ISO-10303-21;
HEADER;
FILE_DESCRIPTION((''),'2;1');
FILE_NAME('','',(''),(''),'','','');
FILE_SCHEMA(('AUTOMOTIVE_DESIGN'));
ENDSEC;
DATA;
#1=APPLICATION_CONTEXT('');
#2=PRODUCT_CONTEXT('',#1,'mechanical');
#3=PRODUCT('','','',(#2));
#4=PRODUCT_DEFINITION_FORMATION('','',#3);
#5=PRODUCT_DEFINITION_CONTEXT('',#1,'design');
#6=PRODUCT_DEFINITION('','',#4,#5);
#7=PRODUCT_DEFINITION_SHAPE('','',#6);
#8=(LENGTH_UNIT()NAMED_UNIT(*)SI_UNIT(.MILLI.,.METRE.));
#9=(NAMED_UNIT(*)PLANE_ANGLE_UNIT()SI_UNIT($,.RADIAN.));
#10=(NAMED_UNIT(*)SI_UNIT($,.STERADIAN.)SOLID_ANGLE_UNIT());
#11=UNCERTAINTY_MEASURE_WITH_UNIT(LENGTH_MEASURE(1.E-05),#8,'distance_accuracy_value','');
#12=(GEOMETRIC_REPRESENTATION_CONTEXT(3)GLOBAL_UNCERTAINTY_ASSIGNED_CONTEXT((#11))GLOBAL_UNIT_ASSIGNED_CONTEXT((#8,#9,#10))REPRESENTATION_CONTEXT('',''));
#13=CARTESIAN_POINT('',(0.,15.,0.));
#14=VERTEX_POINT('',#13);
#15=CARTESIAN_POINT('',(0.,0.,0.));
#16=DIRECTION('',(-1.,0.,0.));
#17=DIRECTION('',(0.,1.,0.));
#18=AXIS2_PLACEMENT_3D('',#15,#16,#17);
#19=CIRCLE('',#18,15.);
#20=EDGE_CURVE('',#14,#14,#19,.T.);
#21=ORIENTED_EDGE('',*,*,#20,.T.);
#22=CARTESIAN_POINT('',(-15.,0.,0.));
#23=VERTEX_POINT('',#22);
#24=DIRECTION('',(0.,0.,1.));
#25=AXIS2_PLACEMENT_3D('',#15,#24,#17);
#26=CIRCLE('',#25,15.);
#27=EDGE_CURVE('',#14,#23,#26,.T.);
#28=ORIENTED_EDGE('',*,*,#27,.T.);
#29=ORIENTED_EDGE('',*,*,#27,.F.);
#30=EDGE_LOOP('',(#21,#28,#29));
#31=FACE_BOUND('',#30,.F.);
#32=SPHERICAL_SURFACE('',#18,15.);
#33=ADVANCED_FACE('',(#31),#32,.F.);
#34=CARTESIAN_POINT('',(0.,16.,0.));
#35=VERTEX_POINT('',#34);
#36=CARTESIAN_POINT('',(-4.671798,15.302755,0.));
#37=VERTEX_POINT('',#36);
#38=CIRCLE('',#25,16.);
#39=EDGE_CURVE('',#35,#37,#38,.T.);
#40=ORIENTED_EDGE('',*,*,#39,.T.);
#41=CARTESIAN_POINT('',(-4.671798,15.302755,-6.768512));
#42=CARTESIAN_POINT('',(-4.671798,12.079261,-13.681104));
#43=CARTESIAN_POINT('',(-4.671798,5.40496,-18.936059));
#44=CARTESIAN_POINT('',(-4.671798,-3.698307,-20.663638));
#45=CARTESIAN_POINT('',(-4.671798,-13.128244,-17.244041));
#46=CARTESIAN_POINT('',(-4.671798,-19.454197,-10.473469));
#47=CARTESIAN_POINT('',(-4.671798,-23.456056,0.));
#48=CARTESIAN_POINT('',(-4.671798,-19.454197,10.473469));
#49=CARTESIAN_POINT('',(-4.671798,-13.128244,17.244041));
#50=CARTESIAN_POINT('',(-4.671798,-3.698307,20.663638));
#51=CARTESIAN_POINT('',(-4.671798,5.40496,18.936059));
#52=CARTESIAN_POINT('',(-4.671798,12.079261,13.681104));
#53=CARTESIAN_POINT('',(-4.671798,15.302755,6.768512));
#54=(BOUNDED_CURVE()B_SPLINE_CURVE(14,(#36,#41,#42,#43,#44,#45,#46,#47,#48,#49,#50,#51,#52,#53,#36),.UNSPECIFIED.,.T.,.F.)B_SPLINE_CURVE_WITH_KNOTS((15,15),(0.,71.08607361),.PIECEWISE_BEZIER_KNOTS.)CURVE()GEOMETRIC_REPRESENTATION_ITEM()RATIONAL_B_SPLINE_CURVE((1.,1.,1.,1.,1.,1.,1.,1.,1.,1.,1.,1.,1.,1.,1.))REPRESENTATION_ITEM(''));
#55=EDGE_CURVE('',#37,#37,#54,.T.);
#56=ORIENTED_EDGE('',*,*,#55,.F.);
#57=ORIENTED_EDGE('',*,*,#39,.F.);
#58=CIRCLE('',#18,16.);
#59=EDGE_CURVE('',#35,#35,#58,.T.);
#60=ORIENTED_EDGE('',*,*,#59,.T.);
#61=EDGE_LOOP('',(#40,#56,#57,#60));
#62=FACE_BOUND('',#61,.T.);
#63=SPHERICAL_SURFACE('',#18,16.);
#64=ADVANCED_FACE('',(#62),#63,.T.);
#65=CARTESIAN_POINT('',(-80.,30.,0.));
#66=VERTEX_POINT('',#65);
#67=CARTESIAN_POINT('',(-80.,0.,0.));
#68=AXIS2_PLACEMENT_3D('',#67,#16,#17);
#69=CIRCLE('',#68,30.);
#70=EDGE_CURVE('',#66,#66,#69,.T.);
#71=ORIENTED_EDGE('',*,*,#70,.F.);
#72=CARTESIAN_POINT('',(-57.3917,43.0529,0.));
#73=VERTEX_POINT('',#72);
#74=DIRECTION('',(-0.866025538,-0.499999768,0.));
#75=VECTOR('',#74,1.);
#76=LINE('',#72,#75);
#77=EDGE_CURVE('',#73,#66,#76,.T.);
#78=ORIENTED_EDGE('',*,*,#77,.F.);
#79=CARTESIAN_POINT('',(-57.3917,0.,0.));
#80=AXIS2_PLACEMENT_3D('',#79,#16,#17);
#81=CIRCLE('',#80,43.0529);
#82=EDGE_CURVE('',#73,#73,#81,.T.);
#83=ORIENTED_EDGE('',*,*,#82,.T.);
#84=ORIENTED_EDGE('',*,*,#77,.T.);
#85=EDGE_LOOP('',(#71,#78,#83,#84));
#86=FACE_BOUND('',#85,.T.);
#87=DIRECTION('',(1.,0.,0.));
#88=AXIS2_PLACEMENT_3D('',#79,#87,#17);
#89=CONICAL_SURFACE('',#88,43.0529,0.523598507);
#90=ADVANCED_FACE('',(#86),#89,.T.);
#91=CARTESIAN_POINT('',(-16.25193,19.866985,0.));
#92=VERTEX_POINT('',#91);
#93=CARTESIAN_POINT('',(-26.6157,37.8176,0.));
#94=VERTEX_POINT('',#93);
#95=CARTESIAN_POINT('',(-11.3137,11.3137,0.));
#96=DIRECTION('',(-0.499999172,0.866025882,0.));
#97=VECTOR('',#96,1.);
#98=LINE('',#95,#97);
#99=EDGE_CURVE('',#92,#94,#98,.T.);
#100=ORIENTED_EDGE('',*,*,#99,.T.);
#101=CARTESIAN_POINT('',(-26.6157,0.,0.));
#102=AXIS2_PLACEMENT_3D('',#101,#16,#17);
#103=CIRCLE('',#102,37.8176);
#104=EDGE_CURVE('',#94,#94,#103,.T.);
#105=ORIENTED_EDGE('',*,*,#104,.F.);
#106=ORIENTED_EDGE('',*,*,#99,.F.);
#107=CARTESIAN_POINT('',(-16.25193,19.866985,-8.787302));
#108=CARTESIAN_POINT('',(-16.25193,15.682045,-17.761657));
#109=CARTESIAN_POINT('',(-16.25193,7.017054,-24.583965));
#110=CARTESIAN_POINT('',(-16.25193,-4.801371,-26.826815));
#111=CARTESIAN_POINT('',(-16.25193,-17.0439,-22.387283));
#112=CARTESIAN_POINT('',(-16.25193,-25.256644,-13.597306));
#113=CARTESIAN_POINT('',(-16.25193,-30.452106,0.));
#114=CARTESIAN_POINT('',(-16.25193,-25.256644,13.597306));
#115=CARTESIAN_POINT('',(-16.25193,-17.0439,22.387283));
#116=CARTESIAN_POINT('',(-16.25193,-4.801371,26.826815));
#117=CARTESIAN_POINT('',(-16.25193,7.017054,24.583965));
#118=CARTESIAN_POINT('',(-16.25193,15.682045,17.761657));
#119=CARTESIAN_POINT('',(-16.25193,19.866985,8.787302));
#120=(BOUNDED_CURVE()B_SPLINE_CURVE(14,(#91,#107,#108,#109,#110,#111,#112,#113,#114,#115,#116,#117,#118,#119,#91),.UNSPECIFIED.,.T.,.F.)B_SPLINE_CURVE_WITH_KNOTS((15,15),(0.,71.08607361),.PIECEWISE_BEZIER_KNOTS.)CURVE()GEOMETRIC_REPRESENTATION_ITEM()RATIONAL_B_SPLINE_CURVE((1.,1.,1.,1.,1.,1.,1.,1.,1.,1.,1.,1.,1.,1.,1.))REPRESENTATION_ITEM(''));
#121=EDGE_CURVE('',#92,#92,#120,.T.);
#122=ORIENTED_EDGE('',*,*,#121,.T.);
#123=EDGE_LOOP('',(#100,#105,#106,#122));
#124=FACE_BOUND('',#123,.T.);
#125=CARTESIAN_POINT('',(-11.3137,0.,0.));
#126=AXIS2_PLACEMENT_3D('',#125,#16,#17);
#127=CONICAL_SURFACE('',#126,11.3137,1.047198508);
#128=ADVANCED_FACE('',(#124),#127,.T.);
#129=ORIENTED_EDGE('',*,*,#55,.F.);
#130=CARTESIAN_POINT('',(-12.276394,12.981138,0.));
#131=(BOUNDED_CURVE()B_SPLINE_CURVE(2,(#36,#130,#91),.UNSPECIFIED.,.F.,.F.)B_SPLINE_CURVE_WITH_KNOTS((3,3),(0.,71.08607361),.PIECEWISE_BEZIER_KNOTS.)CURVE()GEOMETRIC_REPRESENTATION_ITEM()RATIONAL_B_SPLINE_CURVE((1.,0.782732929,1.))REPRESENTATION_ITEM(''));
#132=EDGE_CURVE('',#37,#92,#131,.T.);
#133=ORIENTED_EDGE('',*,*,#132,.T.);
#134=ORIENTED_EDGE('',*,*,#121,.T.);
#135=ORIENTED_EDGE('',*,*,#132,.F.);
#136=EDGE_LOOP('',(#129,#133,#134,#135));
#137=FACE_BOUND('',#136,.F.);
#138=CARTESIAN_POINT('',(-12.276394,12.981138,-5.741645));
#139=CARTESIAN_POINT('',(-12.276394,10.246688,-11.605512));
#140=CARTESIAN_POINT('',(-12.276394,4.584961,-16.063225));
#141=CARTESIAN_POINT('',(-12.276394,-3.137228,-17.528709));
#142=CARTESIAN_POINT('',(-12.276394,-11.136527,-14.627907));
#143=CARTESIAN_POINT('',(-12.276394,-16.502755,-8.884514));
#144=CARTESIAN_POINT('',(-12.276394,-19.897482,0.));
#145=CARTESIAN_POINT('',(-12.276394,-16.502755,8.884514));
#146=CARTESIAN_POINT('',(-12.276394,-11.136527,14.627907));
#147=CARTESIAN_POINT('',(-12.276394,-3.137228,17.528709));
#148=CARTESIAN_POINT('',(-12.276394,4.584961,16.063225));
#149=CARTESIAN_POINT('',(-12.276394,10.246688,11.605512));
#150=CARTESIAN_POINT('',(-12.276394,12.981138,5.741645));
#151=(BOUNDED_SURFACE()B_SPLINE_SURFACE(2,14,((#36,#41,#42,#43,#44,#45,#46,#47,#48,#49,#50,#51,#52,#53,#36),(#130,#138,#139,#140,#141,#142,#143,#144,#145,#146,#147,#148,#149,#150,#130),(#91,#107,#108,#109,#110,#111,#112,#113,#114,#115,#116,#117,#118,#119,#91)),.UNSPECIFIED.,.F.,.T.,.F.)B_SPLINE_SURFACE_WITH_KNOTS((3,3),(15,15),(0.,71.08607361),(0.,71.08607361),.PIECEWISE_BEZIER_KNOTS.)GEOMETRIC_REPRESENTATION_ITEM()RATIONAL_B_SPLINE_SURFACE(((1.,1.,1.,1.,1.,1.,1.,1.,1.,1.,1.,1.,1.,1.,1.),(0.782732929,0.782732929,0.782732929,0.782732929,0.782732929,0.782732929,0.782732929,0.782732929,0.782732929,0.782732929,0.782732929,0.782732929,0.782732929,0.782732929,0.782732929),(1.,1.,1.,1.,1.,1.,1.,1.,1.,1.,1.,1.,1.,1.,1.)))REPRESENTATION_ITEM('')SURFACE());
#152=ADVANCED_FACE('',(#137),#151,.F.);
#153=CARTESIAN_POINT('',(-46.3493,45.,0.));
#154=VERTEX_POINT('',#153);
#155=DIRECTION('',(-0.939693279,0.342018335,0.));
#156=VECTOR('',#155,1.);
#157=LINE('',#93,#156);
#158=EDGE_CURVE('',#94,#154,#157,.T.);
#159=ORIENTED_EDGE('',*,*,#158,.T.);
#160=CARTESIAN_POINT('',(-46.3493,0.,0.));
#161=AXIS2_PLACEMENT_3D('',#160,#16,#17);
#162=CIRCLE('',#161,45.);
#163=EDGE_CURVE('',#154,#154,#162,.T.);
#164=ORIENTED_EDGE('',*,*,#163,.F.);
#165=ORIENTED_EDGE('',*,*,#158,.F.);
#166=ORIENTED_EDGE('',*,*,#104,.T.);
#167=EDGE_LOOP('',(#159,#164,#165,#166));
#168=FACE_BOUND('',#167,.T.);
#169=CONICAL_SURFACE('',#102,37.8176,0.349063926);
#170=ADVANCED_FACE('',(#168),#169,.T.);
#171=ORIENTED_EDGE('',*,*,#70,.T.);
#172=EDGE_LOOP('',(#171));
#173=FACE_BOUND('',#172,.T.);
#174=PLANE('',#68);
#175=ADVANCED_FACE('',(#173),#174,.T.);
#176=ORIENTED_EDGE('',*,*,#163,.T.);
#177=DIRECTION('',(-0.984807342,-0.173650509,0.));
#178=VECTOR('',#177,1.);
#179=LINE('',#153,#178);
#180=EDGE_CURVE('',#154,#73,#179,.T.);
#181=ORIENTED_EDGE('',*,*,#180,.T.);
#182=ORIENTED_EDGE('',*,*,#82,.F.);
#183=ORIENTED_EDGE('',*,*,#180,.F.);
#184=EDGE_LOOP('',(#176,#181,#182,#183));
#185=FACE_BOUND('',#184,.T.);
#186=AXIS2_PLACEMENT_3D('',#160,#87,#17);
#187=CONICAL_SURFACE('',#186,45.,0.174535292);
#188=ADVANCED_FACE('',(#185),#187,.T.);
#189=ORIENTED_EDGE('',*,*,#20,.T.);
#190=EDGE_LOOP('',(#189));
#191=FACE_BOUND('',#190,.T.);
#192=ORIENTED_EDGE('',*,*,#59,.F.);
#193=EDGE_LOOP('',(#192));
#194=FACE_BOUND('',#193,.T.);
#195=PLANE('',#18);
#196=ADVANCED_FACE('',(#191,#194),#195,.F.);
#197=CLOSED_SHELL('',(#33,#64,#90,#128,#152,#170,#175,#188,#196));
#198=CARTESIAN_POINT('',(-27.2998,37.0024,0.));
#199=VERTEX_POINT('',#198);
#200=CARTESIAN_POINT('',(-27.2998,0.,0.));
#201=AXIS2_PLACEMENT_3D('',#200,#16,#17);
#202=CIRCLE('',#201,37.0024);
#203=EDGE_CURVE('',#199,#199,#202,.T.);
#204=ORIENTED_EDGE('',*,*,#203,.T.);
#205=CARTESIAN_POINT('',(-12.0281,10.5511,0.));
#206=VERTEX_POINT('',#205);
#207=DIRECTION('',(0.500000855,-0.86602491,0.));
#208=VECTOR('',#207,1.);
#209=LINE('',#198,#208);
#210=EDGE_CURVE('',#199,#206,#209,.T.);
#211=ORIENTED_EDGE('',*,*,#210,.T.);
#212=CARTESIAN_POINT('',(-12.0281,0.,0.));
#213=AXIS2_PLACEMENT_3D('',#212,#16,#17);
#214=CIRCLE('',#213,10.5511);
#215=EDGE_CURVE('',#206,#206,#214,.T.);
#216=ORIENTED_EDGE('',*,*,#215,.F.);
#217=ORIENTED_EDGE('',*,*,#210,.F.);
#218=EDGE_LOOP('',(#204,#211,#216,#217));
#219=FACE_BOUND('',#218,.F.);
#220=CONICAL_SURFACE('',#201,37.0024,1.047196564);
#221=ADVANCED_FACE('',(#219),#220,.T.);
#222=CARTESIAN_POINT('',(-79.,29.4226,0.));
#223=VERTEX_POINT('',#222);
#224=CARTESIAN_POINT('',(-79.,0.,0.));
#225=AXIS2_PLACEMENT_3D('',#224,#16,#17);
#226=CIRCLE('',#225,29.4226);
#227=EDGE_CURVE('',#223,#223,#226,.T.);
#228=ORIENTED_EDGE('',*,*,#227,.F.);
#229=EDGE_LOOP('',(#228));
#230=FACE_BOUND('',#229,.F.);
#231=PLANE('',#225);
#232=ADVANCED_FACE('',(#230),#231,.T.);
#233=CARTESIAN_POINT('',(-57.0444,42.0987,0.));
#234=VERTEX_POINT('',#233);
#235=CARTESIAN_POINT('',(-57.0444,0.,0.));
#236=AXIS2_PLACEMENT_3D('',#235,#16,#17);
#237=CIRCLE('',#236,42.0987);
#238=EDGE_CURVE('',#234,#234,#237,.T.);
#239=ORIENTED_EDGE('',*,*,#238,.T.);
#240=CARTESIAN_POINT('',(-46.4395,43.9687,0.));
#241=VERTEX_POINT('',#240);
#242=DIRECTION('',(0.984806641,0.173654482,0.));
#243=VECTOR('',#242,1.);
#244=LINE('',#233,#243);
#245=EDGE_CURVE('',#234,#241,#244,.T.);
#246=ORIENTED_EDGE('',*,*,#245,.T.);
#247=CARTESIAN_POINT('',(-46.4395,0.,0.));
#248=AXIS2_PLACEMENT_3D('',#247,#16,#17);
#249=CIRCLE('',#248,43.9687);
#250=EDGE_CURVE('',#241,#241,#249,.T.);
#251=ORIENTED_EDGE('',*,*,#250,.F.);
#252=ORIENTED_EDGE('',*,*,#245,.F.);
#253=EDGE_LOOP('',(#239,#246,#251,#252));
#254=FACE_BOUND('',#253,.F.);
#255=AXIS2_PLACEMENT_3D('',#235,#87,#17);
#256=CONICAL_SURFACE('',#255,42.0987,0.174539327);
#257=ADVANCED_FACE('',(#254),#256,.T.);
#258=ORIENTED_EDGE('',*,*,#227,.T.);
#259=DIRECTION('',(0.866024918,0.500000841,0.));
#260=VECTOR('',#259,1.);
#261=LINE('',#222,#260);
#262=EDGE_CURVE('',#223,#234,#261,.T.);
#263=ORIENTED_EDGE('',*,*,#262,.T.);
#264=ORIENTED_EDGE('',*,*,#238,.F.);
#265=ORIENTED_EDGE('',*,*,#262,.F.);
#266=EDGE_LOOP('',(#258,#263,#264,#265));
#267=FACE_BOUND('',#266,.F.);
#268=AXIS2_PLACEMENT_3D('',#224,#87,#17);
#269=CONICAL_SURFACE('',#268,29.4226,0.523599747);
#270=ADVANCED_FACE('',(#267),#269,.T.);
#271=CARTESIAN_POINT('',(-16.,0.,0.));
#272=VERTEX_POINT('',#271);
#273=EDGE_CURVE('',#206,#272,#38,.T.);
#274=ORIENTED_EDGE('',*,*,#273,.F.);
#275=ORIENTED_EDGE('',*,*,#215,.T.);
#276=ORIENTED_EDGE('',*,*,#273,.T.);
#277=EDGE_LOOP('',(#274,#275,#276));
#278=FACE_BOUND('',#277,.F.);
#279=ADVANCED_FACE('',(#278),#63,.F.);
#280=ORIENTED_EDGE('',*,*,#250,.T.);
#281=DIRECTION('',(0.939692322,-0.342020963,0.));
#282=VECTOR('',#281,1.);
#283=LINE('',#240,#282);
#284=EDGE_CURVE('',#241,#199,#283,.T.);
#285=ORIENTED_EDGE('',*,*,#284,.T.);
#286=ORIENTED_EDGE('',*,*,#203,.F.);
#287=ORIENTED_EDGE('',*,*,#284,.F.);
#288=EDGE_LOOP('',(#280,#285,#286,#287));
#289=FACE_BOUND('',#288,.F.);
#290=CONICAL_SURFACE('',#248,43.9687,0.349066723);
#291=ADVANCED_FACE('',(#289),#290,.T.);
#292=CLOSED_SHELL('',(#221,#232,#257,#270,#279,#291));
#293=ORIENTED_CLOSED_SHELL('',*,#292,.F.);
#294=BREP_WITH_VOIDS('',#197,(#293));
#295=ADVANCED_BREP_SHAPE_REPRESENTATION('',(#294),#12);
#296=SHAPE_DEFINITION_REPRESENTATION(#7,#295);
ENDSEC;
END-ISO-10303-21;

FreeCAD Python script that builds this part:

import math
import FreeCAD as App
import Part
import Sketcher
Q = App.Units.Quantity


def edges_at(feature, points):
    """Names of the edges that pass closest to the given points."""
    edges = feature.Shape.Edges
    near = lambda p: min(range(len(edges)), key=lambda i: edges[i].distToShape(Part.Vertex(*p))[0])
    return sorted({f"Edge{near(p) + 1}" for p in points})

doc = App.newDocument("Part")
params = doc.addObject("Spreadsheet::Sheet", "Params")
for row, (alias, value) in enumerate([
    ("sketch1_radius", "15 mm"),
    ("sketch1_width", "1 mm"),
    ("sketch1_height", "30 mm"),
    ("sketch1_length", "21 mm"),
    ("revolution_angle", "360 deg"),
    ("fillet_radius", "10 mm"),
], start=1):
    params.set(f"A{row}", alias)
    params.set(f"B{row}", "=" + value)
    params.setAlias(f"B{row}", alias)

body = doc.addObject("PartDesign::Body", "Body")

sketch1 = doc.addObject("Sketcher::SketchObject", "Sketch")
body.addObject(sketch1)
sketch1.AttachmentSupport = (doc.XY_Plane, [""])
sketch1.MapMode = "FlatFace"
sketch1.addGeometry([
    Part.LineSegment(App.Vector(-16, 0, 0), App.Vector(-15, 0, 0)),
    Part.ArcOfCircle(Part.Circle(App.Vector(0, 0, 0), App.Vector(0, 0, 1), 15), math.radians(90), math.radians(180)),
    Part.LineSegment(App.Vector(0, 15, 0), App.Vector(0, 16, 0)),
    Part.ArcOfCircle(Part.Circle(App.Vector(0, 0, 0), App.Vector(0, 0, 1), 16), math.radians(90), math.radians(135)),
    Part.LineSegment(App.Vector(-11.3137, 11.3137, 0), App.Vector(-26.6157, 37.8176, 0)),
    Part.LineSegment(App.Vector(-26.6157, 37.8176, 0), App.Vector(-46.3493, 45, 0)),
    Part.LineSegment(App.Vector(-46.3493, 45, 0), App.Vector(-57.3917, 43.0529, 0)),
    Part.LineSegment(App.Vector(-57.3917, 43.0529, 0), App.Vector(-80, 30, 0)),
    Part.LineSegment(App.Vector(-80, 30, 0), App.Vector(-80, 0, 0)),
    Part.LineSegment(App.Vector(-80, 0, 0), App.Vector(-79, 0, 0)),
    Part.LineSegment(App.Vector(-79, 0, 0), App.Vector(-79, 29.4226, 0)),
    Part.LineSegment(App.Vector(-79, 29.4226, 0), App.Vector(-57.0444, 42.0987, 0)),
    Part.LineSegment(App.Vector(-57.0444, 42.0987, 0), App.Vector(-46.4395, 43.9687, 0)),
    Part.LineSegment(App.Vector(-46.4395, 43.9687, 0), App.Vector(-27.2998, 37.0024, 0)),
    Part.LineSegment(App.Vector(-27.2998, 37.0024, 0), App.Vector(-12.0281, 10.5511, 0)),
    Part.ArcOfCircle(Part.Circle(App.Vector(0, 0, 0), App.Vector(0, 0, 1), 16), math.radians(138.742625), math.radians(180)),
], False)
sketch1.addConstraint([
    Sketcher.Constraint("Coincident", 0, 2, 1, 2),
    Sketcher.Constraint("Coincident", 1, 1, 2, 1),
    Sketcher.Constraint("Coincident", 2, 2, 3, 1),
    Sketcher.Constraint("Coincident", 3, 2, 4, 1),
    Sketcher.Constraint("Coincident", 4, 2, 5, 1),
    Sketcher.Constraint("Coincident", 5, 2, 6, 1),
    Sketcher.Constraint("Coincident", 6, 2, 7, 1),
    Sketcher.Constraint("Coincident", 7, 2, 8, 1),
    Sketcher.Constraint("Coincident", 8, 2, 9, 1),
    Sketcher.Constraint("Coincident", 9, 2, 10, 1),
    Sketcher.Constraint("Coincident", 10, 2, 11, 1),
    Sketcher.Constraint("Coincident", 11, 2, 12, 1),
    Sketcher.Constraint("Coincident", 12, 2, 13, 1),
    Sketcher.Constraint("Coincident", 13, 2, 14, 1),
    Sketcher.Constraint("Coincident", 14, 2, 15, 1),
    Sketcher.Constraint("Coincident", 15, 2, 0, 1),
    Sketcher.Constraint("Horizontal", 0),
    Sketcher.Constraint("Vertical", 2),
    Sketcher.Constraint("Vertical", 8),
    Sketcher.Constraint("Horizontal", 9),
    Sketcher.Constraint("Vertical", 10),
    Sketcher.Constraint("Coincident", 1, 3, -1, 1),
    Sketcher.Constraint("Coincident", 3, 3, -1, 1),
    Sketcher.Constraint("Coincident", 15, 3, -1, 1),
    Sketcher.Constraint("Equal", 3, 15),
    Sketcher.Constraint("PointOnObject", 0, 2, -1),
    Sketcher.Constraint("PointOnObject", 1, 1, -2),
    Sketcher.Constraint("PointOnObject", 8, 2, -1),
    Sketcher.Constraint("Perpendicular", 4, 7),
    Sketcher.Constraint("Parallel", 7, 11),
    Sketcher.Constraint("Parallel", 6, 12),
    Sketcher.Constraint("Parallel", 5, 13),
    Sketcher.Constraint("Perpendicular", 11, 14),
    Sketcher.Constraint("Equal", 0, 9),
    Sketcher.Constraint("Radius", 1, 15.0),
    Sketcher.Constraint("DistanceX", 0, 1, 0, 2, 1.0),
    Sketcher.Constraint("DistanceY", 8, 2, 8, 1, 30.0),
    Sketcher.Constraint("Angle", 4, Q("120 deg")),
    Sketcher.Constraint("Angle", 5, Q("160 deg")),
    Sketcher.Constraint("Distance", 5, 21.0),
    Sketcher.Constraint("DistanceX", 7, 2, -1, 1, 80.0),
    Sketcher.Constraint("DistanceY", 1, 1, 5, 2, 30.0),
    Sketcher.Constraint("Angle", 6, Q("-169.9999 deg")),
    Sketcher.Constraint("DistanceY", 11, 2, 12, 2, 1.87),
    Sketcher.Constraint("Distance", 4, 30.604),
    Sketcher.Constraint("Distance", 13, 20.368),
    Sketcher.Constraint("DistanceY", 10, 1, 10, 2, 29.4226),
    Sketcher.Constraint("DistanceX", 14, 2, -1, 1, 12.028),
])
sketch1.setExpression("Constraints[34]", "Params.sketch1_radius")
sketch1.setExpression("Constraints[35]", "Params.sketch1_width")
sketch1.setExpression("Constraints[36]", "Params.sketch1_height")
sketch1.setExpression("Constraints[39]", "Params.sketch1_length")
revolution = doc.addObject("PartDesign::Revolution", "Revolution")
body.addObject(revolution)
revolution.Profile = sketch1
revolution.ReferenceAxis = (sketch1, ["H_Axis"])
revolution.setExpression("Angle", "Params.revolution_angle")
doc.recompute()

fillet = doc.addObject("PartDesign::Fillet", "Fillet")
body.addObject(fillet)
fillet.Base = (revolution, edges_at(revolution, [(-11.314, -11.314, 0)]))
fillet.setExpression("Radius", "Params.fillet_radius")

doc.recompute()
